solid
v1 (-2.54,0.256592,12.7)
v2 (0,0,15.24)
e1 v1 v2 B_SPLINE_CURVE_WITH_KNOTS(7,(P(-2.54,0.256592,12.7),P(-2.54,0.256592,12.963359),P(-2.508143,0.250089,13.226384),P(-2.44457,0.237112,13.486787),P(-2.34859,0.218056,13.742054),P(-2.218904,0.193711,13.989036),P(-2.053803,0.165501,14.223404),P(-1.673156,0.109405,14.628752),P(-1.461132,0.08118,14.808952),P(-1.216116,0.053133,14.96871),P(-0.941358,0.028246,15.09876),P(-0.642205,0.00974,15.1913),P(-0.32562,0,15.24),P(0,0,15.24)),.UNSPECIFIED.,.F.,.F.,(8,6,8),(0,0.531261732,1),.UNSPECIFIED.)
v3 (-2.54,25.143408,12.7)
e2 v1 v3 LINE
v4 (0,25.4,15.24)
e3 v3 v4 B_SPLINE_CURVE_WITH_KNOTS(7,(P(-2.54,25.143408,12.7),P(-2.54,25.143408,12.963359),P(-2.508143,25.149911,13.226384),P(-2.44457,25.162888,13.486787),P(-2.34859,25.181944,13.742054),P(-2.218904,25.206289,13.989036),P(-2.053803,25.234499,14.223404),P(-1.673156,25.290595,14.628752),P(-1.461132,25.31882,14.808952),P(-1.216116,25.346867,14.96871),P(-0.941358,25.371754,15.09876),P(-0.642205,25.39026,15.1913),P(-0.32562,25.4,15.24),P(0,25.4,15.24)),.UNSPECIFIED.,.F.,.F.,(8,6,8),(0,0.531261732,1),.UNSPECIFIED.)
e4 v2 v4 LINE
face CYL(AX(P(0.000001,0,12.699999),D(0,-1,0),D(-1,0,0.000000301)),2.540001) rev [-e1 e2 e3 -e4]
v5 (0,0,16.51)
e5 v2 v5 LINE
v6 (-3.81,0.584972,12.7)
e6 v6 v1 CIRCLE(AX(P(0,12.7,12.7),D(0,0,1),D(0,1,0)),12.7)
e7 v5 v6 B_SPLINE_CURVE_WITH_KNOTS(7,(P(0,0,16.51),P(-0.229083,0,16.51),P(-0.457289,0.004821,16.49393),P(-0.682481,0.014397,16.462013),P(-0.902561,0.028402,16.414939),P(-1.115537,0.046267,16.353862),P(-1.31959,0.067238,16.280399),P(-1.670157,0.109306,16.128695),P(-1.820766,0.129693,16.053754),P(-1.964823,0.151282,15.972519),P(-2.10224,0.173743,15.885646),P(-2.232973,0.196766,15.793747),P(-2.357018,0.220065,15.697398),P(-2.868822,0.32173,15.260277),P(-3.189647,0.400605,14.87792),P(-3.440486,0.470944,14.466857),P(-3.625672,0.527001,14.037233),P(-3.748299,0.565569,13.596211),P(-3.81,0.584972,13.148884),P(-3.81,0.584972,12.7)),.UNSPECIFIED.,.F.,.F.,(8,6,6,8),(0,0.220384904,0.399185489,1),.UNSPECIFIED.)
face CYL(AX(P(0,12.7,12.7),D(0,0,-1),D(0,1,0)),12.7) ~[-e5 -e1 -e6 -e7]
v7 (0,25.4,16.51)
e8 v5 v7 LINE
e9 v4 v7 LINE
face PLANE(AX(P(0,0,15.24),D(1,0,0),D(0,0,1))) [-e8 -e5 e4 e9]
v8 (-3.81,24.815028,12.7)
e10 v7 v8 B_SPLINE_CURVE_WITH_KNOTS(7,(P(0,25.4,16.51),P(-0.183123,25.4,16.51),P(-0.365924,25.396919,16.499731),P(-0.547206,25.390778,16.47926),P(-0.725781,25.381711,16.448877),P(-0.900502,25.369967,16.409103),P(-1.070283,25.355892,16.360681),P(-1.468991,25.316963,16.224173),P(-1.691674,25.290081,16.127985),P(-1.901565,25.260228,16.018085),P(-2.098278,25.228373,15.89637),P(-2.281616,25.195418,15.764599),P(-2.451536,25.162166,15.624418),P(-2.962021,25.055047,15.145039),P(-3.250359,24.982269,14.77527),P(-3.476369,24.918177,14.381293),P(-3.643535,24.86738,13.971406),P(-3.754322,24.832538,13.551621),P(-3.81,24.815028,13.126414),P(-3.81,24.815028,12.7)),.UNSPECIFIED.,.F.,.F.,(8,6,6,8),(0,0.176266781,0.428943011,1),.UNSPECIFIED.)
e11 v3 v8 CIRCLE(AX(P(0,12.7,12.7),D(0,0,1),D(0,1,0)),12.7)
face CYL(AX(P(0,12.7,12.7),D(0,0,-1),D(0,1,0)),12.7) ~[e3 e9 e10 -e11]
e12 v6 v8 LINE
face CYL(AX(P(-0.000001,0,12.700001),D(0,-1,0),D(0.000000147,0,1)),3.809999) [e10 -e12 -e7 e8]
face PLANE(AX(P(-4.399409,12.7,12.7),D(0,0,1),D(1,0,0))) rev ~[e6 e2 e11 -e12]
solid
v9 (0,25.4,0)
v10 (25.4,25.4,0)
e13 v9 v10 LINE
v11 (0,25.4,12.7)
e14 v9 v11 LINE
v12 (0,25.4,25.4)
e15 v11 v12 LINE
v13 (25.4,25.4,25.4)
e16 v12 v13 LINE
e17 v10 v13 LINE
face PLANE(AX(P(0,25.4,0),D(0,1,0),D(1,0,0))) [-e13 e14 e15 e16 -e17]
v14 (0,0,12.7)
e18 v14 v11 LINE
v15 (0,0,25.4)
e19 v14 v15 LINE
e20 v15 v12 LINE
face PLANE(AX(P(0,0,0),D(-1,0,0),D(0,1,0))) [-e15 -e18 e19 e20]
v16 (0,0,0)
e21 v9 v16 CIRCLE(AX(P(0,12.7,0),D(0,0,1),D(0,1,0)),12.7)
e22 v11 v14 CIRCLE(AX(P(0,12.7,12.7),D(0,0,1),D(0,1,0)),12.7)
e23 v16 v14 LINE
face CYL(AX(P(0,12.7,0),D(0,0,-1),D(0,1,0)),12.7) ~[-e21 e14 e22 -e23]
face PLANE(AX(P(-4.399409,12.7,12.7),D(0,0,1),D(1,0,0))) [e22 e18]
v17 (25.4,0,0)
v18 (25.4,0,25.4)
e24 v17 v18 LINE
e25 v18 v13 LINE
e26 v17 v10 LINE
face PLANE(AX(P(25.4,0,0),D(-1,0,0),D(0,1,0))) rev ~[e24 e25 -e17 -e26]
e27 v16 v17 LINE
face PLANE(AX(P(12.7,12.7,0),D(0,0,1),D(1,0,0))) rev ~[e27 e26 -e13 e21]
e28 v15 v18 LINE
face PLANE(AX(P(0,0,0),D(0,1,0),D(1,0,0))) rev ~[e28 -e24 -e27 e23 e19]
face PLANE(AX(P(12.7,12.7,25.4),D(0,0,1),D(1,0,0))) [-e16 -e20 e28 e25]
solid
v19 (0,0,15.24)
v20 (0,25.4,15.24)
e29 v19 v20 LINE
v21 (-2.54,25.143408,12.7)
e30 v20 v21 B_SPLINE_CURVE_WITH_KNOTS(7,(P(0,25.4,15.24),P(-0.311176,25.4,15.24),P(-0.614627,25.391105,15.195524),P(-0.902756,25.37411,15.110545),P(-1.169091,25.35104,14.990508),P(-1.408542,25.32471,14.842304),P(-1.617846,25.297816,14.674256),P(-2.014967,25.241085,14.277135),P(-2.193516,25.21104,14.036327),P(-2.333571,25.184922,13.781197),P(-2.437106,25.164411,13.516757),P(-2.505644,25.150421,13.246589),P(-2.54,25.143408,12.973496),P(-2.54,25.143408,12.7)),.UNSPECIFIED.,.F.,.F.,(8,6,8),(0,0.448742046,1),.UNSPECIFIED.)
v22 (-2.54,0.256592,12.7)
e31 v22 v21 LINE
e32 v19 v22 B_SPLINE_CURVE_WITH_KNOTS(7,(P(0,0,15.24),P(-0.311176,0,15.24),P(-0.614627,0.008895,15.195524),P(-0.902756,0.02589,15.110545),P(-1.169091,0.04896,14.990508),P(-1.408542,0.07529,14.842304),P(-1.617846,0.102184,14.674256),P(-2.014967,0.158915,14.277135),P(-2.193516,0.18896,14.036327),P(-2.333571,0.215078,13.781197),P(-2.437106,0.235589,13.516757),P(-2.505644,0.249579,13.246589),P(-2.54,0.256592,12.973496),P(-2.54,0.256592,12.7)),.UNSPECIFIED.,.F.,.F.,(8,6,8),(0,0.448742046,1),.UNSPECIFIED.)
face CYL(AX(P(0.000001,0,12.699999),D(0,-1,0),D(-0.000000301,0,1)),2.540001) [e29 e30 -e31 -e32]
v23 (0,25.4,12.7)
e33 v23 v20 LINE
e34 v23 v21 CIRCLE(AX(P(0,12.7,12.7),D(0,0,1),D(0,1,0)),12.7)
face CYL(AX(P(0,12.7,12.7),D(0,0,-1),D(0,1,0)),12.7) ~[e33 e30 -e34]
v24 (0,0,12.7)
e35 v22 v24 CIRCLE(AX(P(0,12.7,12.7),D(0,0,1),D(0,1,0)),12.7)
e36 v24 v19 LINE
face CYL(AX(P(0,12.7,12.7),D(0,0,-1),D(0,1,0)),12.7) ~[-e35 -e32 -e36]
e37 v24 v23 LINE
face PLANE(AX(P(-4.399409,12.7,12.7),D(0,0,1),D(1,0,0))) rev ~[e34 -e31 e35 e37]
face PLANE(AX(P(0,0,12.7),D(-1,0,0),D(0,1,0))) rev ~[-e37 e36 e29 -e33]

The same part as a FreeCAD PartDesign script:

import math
import FreeCAD as App
import Part
import Sketcher

V = App.Vector
Q = App.Units.Quantity


def add_polygon(sketch, points):
    """Adds a closed chain of lines whose ends are joined by coincident constraints."""
    first, n = sketch.GeometryCount, len(points)
    for a, b in zip(points, points[1:] + points[:1]):
        sketch.addGeometry(Part.LineSegment(App.Vector(*a, 0), App.Vector(*b, 0)), False)
    for i in range(n):
        sketch.addConstraint(Sketcher.Constraint("Coincident", first + i, 2, first + (i + 1) % n, 1))

doc = App.newDocument("Part")
body = doc.addObject("PartDesign::Body", "Body")

# Sketch on XY plane
sketch1 = body.newObject("Sketcher::SketchObject", "Sketch")
sketch1.AttachmentSupport = (doc.getObject("XY_Plane"), [""])
sketch1.MapMode = "FlatFace"
sketch1.addGeometry(Part.ArcOfCircle(Part.Circle(V(0, 13, 0), V(0, 0, 1), 13), math.radians(90), math.radians(270)), False)
sketch1.addGeometry(Part.LineSegment(V(0, 0, 0), V(0, 25, 0)), False)
sketch1.addConstraint(Sketcher.Constraint("Coincident", 0, 1, 1, 2))
sketch1.addConstraint(Sketcher.Constraint("Coincident", 1, 1, 0, 2))
sketch1.addConstraint(Sketcher.Constraint("Vertical", 1))
sketch1.addConstraint(Sketcher.Constraint("Coincident", 1, 1, -1, 1))
sketch1.addConstraint(Sketcher.Constraint("PointOnObject", 0, 3, -2))
sketch1.addConstraint(Sketcher.Constraint("Radius", 0, Q("0.5 in")))
pad1 = body.newObject("PartDesign::Pad", "Pad")
pad1.Profile = sketch1
pad1.Length = Q("0.5 in")

# Sketch on XY plane
sketch2 = body.newObject("Sketcher::SketchObject", "Sketch001")
sketch2.AttachmentSupport = (doc.getObject("XY_Plane"), [""])
sketch2.MapMode = "FlatFace"
add_polygon(sketch2, [(0, 25), (0, 0), (25, 0), (25, 25)])  # lines 0-3
sketch2.addConstraint(Sketcher.Constraint("Vertical", 0))
sketch2.addConstraint(Sketcher.Constraint("Horizontal", 1))
sketch2.addConstraint(Sketcher.Constraint("Vertical", 2))
sketch2.addConstraint(Sketcher.Constraint("Horizontal", 3))
sketch2.addConstraint(Sketcher.Constraint("Coincident", 0, 2, -1, 1))
sketch2.addConstraint(Sketcher.Constraint("Equal", 3, 0))
sketch2.addConstraint(Sketcher.Constraint("DistanceX", 1, 1, 1, 2, Q("1 in")))
pad2 = body.newObject("PartDesign::Pad", "Pad001")
pad2.Profile = sketch2
pad2.Length = Q("1 in")
body2 = doc.addObject("PartDesign::Body", "Body001")

# Sketch on XZ plane
sketch3 = body2.newObject("Sketcher::SketchObject", "Sketch002")
sketch3.AttachmentSupport = (doc.getObject("XZ_Plane001"), [""])
sketch3.MapMode = "FlatFace"
sketch3.addGeometry(Part.LineSegment(V(-2.5, 12.7, 0), V(0, 12.7, 0)), False)
sketch3.addGeometry(Part.LineSegment(V(0, 12.7, 0), V(0, 15.2, 0)), False)
sketch3.addGeometry(Part.ArcOfCircle(Part.Circle(V(0, 12.7, 0), V(0, 0, 1), 2.5), math.radians(90), math.radians(180)), False)
sketch3.addConstraint(Sketcher.Constraint("Coincident", 0, 2, 1, 1))
sketch3.addConstraint(Sketcher.Constraint("Coincident", 1, 2, 2, 1))
sketch3.addConstraint(Sketcher.Constraint("Coincident", 2, 2, 0, 1))
sketch3.addConstraint(Sketcher.Constraint("Horizontal", 0))
sketch3.addConstraint(Sketcher.Constraint("Vertical", 1))
sketch3.addConstraint(Sketcher.Constraint("Coincident", 0, 2, 2, 3))
sketch3.addConstraint(Sketcher.Constraint("PointOnObject", 2, 3, -2))
sketch3.addConstraint(Sketcher.Constraint("Radius", 2, Q("0.1 in")))
sketch3.addConstraint(Sketcher.Constraint("DistanceY", -1, 1, 2, 3, Q("0.5 in")))
pad3 = body2.newObject("PartDesign::Pad", "Pad002")
pad3.Profile = sketch3
pad3.Length = Q("1 in")
pad3.Reversed = True
body3 = doc.addObject("PartDesign::Body", "Body002")

# Sketch on XZ plane
sketch4 = body3.newObject("Sketcher::SketchObject", "Sketch003")
sketch4.AttachmentSupport = (doc.getObject("XZ_Plane002"), [""])
sketch4.MapMode = "FlatFace"
sketch4.addGeometry(Part.LineSegment(V(-3.8, 12.7, 0), V(-2.5, 12.7, 0)), False)
sketch4.addGeometry(Part.ArcOfCircle(Part.Circle(V(0, 12.7, 0), V(0, 0, 1), 2.5), math.radians(90), math.radians(180)), False)
sketch4.addGeometry(Part.LineSegment(V(0, 15.2, 0), V(0, 16.5, 0)), False)
sketch4.addGeometry(Part.ArcOfCircle(Part.Circle(V(0, 12.7, 0), V(0, 0, 1), 3.8), math.radians(90), math.radians(180)), False)
sketch4.addConstraint(Sketcher.Constraint("Coincident", 0, 2, 1, 2))
sketch4.addConstraint(Sketcher.Constraint("Coincident", 1, 1, 2, 1))
sketch4.addConstraint(Sketcher.Constraint("Coincident", 2, 2, 3, 1))
sketch4.addConstraint(Sketcher.Constraint("Coincident", 3, 2, 0, 1))
sketch4.addConstraint(Sketcher.Constraint("Horizontal", 0))
sketch4.addConstraint(Sketcher.Constraint("Vertical", 2))
sketch4.addConstraint(Sketcher.Constraint("Coincident", 3, 3, 1, 3))
sketch4.addConstraint(Sketcher.Constraint("PointOnObject", 1, 3, -2))
sketch4.addConstraint(Sketcher.Constraint("PointOnObject", 1, 1, -2))
sketch4.addConstraint(Sketcher.Constraint("Horizontal", 3, 3, 0, 2))
sketch4.addConstraint(Sketcher.Constraint("Radius", 1, Q("0.1 in")))
sketch4.addConstraint(Sketcher.Constraint("Radius", 3, Q("0.15 in")))
sketch4.addConstraint(Sketcher.Constraint("DistanceY", -1, 1, 1, 3, Q("0.5 in")))
pad4 = body3.newObject("PartDesign::Pad", "Pad003")
pad4.Profile = sketch4
pad4.Length = Q("1 in")
pad4.Reversed = True
body4 = doc.addObject("PartDesign::Body", "Body003")

# Sketch on XY plane
sketch5 = body4.newObject("Sketcher::SketchObject", "Sketch004")
sketch5.AttachmentSupport = (doc.getObject("XY_Plane003"), [""])
sketch5.MapMode = "FlatFace"
sketch5.AttachmentOffset = App.Placement(V(0, 0, 0.5 * 25.4), App.Rotation())
sketch5.addGeometry(Part.LineSegment(V(0, 0, 0), V(0, 25, 0)), False)
sketch5.addGeometry(Part.ArcOfCircle(Part.Circle(V(0, 13, 0), V(0, 0, 1), 13), math.radians(90), math.radians(270)), False)
sketch5.addConstraint(Sketcher.Constraint("Coincident", 0, 1, 1, 2))
sketch5.addConstraint(Sketcher.Constraint("Coincident", 1, 1, 0, 2))
sketch5.addConstraint(Sketcher.Constraint("Vertical", 0))
sketch5.addConstraint(Sketcher.Constraint("Coincident", 0, 1, -1, 1))
sketch5.addConstraint(Sketcher.Constraint("PointOnObject", 1, 3, -2))
sketch5.addConstraint(Sketcher.Constraint("Radius", 1, Q("0.5 in")))
pad5 = body4.newObject("PartDesign::Pad", "Pad004")
pad5.Profile = sketch5
pad5.Length = Q("1 in")
doc.recompute()

boolean = body4.newObject("PartDesign::Boolean", "Boolean")
boolean.Type = "Common"
boolean.addObjects([body2])
body5 = doc.addObject("PartDesign::Body", "Body004")

# Sketch on XY plane
sketch6 = body5.newObject("Sketcher::SketchObject", "Sketch005")
sketch6.AttachmentSupport = (doc.getObject("XY_Plane004"), [""])
sketch6.MapMode = "FlatFace"
sketch6.AttachmentOffset = App.Placement(V(0, 0, 0.5 * 25.4), App.Rotation())
sketch6.addGeometry(Part.LineSegment(V(0, 0, 0), V(0, 25, 0)), False)
sketch6.addGeometry(Part.ArcOfCircle(Part.Circle(V(0, 13, 0), V(0, 0, 1), 13), math.radians(90), math.radians(270)), False)
sketch6.addConstraint(Sketcher.Constraint("Coincident", 0, 1, 1, 2))
sketch6.addConstraint(Sketcher.Constraint("Coincident", 1, 1, 0, 2))
sketch6.addConstraint(Sketcher.Constraint("Vertical", 0))
sketch6.addConstraint(Sketcher.Constraint("Coincident", 0, 1, -1, 1))
sketch6.addConstraint(Sketcher.Constraint("PointOnObject", 1, 3, -2))
sketch6.addConstraint(Sketcher.Constraint("Radius", 1, Q("0.5 in")))
pad6 = body5.newObject("PartDesign::Pad", "Pad005")
pad6.Profile = sketch6
pad6.Length = Q("1 in")
doc.recompute()

boolean2 = body5.newObject("PartDesign::Boolean", "Boolean001")
boolean2.Type = "Common"
boolean2.addObjects([body3])

doc.recompute()
